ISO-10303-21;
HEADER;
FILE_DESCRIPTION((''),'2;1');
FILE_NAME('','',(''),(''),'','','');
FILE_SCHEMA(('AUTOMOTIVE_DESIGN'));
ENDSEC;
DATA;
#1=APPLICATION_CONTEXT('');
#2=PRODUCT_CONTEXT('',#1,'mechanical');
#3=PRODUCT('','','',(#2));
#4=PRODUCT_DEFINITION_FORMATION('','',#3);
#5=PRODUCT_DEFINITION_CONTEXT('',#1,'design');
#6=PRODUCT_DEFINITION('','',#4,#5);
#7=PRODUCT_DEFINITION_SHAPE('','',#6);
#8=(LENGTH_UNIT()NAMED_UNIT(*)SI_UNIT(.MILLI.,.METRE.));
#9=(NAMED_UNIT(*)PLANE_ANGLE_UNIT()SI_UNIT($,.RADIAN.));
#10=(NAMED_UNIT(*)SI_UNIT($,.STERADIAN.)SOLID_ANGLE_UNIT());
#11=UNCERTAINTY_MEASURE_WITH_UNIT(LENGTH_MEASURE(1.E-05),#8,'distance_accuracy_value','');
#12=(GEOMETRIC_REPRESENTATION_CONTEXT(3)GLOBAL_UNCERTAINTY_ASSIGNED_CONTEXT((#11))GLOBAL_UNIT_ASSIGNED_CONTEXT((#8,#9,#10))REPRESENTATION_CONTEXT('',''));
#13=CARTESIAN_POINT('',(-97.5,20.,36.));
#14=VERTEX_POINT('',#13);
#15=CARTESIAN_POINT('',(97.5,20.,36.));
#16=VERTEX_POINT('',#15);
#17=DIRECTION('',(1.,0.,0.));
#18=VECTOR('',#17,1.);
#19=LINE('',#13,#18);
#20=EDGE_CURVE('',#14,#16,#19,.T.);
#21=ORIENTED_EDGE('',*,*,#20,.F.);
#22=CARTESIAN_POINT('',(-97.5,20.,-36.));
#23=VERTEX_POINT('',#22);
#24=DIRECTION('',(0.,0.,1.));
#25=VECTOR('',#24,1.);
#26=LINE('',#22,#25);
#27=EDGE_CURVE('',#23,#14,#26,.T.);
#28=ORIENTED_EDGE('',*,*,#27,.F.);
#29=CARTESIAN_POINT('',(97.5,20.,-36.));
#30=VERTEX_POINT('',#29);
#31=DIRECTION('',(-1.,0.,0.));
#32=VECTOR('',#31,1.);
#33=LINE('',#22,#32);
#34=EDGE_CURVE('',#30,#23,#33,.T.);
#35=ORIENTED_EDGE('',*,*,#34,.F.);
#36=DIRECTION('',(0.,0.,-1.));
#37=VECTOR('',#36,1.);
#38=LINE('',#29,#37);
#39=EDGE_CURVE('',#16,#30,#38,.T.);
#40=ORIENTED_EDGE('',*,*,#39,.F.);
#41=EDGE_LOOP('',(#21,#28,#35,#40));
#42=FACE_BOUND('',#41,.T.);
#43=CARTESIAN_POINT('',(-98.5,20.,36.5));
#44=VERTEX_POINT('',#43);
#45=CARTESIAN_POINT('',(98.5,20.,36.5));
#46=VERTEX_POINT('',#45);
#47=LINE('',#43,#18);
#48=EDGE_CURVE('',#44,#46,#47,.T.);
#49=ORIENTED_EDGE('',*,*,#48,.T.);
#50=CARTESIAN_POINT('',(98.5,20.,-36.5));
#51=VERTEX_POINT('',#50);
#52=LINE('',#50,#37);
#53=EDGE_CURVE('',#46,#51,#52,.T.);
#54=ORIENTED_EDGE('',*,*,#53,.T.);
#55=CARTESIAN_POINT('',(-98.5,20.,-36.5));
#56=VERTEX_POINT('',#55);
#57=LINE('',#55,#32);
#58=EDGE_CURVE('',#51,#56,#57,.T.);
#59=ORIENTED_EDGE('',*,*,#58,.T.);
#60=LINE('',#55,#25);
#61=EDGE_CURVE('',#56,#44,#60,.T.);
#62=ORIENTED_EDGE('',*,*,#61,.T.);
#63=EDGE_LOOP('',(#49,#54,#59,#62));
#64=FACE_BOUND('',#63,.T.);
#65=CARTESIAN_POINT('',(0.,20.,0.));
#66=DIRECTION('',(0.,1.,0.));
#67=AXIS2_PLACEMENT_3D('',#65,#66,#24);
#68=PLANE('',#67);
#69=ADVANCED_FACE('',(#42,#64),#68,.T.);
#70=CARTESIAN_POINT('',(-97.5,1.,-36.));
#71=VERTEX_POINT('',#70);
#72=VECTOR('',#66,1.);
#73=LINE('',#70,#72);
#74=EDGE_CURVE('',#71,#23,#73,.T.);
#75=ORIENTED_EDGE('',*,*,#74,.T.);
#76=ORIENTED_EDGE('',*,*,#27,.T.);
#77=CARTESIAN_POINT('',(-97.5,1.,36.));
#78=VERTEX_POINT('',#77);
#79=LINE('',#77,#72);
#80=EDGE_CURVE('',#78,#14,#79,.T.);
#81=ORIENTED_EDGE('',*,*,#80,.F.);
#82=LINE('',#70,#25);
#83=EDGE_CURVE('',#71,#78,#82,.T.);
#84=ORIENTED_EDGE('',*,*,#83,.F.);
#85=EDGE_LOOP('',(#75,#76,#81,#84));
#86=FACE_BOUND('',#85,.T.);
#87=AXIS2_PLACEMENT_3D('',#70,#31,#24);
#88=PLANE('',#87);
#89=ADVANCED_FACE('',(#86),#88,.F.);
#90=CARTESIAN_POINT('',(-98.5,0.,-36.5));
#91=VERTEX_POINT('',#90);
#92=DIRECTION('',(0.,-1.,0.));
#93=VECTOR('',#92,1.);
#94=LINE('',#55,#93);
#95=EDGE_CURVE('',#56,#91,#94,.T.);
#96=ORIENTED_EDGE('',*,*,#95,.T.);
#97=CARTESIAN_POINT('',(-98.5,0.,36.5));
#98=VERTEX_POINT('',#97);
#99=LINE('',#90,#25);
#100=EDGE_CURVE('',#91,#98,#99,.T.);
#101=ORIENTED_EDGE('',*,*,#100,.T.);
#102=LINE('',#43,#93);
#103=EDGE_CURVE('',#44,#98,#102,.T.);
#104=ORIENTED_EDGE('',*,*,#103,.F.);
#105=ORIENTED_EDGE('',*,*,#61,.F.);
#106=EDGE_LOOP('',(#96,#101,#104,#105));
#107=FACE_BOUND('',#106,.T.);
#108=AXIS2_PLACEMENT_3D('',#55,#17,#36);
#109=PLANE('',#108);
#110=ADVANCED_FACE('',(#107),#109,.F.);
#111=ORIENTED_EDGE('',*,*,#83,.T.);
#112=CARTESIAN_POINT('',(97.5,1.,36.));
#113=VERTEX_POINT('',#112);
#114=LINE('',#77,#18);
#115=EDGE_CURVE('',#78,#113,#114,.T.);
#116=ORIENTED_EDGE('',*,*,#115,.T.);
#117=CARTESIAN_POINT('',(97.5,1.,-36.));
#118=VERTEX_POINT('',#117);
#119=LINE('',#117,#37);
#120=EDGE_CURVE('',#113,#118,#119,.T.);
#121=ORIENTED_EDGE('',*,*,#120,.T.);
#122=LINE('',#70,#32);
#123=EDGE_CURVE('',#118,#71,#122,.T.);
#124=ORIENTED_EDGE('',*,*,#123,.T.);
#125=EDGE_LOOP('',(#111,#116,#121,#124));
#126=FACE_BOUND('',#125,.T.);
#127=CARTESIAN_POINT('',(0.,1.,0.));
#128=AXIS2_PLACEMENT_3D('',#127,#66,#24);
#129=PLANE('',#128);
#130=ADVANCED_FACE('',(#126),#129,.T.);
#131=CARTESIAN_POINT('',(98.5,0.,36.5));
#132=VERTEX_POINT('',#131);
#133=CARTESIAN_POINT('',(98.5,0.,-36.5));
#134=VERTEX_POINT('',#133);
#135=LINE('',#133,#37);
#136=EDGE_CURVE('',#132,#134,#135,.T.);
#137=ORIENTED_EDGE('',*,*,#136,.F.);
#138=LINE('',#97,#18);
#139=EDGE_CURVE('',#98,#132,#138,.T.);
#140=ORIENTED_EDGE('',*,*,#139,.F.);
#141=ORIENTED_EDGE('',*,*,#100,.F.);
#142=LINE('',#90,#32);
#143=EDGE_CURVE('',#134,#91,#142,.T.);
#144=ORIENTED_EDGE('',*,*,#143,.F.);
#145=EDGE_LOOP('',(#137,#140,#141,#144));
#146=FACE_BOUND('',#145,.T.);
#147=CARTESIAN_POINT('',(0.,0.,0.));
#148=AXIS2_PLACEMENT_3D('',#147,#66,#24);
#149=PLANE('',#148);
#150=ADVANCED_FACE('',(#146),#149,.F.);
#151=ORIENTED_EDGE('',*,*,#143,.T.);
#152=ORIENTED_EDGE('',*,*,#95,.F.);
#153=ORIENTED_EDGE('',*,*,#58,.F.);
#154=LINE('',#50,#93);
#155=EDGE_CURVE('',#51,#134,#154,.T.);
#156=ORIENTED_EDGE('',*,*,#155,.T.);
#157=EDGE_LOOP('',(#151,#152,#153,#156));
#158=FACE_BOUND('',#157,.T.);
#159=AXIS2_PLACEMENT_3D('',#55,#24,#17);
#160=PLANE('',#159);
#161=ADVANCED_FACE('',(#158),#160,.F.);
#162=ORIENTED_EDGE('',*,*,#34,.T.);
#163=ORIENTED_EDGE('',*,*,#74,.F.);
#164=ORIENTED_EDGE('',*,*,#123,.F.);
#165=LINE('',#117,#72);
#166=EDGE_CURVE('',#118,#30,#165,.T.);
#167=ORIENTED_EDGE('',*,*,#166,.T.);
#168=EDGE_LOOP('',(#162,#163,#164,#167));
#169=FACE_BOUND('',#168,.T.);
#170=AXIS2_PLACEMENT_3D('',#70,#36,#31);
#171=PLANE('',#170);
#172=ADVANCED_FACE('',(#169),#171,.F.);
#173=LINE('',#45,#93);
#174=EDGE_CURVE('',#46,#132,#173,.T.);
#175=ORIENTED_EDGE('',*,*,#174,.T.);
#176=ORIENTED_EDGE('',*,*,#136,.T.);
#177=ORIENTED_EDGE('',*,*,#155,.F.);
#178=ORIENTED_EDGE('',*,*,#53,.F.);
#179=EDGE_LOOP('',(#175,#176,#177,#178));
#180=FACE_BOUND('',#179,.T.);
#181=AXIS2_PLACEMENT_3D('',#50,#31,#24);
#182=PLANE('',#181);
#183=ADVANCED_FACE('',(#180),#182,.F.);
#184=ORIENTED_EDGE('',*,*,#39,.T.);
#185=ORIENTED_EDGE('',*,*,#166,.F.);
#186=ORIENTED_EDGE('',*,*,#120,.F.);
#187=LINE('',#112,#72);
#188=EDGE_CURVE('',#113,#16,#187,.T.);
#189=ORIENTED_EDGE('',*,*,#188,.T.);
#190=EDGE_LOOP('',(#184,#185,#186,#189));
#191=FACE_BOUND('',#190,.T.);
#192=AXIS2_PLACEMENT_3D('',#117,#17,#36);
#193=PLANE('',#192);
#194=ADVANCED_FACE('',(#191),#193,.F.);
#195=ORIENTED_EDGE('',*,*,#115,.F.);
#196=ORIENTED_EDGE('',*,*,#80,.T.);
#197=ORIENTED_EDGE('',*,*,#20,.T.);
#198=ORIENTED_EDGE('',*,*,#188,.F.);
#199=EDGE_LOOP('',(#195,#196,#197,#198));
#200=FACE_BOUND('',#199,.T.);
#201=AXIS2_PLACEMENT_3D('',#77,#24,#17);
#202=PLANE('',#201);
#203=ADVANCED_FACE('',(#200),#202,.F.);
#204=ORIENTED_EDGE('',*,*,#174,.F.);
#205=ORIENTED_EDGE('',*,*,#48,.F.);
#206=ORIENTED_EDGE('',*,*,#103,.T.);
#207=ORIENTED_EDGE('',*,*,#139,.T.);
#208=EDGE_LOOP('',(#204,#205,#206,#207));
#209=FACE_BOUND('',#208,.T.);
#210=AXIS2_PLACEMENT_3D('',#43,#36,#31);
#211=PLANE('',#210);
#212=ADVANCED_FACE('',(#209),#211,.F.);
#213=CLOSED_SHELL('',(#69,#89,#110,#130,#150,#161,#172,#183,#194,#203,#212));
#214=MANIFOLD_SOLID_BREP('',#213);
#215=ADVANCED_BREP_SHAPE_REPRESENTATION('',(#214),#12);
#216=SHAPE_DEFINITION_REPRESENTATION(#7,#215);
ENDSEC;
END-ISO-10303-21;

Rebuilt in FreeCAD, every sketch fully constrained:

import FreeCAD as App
import Part
import Sketcher

V = App.Vector
Q = App.Units.Quantity


def add_polygon(sketch, points):
    """Adds a closed chain of lines whose ends are joined by coincident constraints."""
    first, n = sketch.GeometryCount, len(points)
    for a, b in zip(points, points[1:] + points[:1]):
        sketch.addGeometry(Part.LineSegment(App.Vector(*a, 0), App.Vector(*b, 0)), False)
    for i in range(n):
        sketch.addConstraint(Sketcher.Constraint("Coincident", first + i, 2, first + (i + 1) % n, 1))

doc = App.newDocument("Part")
params = doc.addObject("Spreadsheet::Sheet", "Params")
for row, (alias, value) in enumerate([
    ("sketch1_width", "197 mm"),
    ("sketch1_height", "73 mm"),
    ("pad1_length", "20 mm"),
    ("sketch2_width", "195 mm"),
    ("sketch2_height", "72 mm"),
    ("pocket1_length", "19 mm"),
], start=1):
    params.set(f"A{row}", alias)
    params.set(f"B{row}", "=" + value)
    params.setAlias(f"B{row}", alias)

body = doc.addObject("PartDesign::Body", "Body")

sketch1 = body.newObject("Sketcher::SketchObject", "Sketch")
sketch1.AttachmentSupport = (doc.getObject("XZ_Plane"), [""])
sketch1.MapMode = "FlatFace"
add_polygon(sketch1, [(-98.5, -36.5), (-98.5, 36.5), (98.5, 36.5), (98.5, -36.5)])
sketch1.addConstraint(Sketcher.Constraint("Vertical", 0))
sketch1.addConstraint(Sketcher.Constraint("Horizontal", 1))
sketch1.addConstraint(Sketcher.Constraint("Vertical", 2))
sketch1.addConstraint(Sketcher.Constraint("Horizontal", 3))
sketch1.addConstraint(Sketcher.Constraint("Symmetric", 0, 2, 2, 2, -1, 1))
sketch1.addConstraint(Sketcher.Constraint("DistanceX", 1, 1, 1, 2, Q("197 mm")))
sketch1.addConstraint(Sketcher.Constraint("DistanceY", 0, 1, 0, 2, Q("73 mm")))
sketch1.setExpression("Constraints[9]", "Params.sketch1_width")
sketch1.setExpression("Constraints[10]", "Params.sketch1_height")
pad1 = body.newObject("PartDesign::Pad", "Pad")
pad1.Profile = sketch1
pad1.setExpression("Length", "Params.pad1_length")
pad1.Reversed = True

sketch2 = body.newObject("Sketcher::SketchObject", "Sketch001")
sketch2.AttachmentSupport = (doc.getObject("XZ_Plane"), [""])
sketch2.MapMode = "FlatFace"
sketch2.AttachmentOffset = App.Placement(V(0, 0, -20), App.Rotation())
add_polygon(sketch2, [(-97.5, -36), (-97.5, 36), (97.5, 36), (97.5, -36)])
sketch2.addConstraint(Sketcher.Constraint("Vertical", 0))
sketch2.addConstraint(Sketcher.Constraint("Horizontal", 1))
sketch2.addConstraint(Sketcher.Constraint("Vertical", 2))
sketch2.addConstraint(Sketcher.Constraint("Horizontal", 3))
sketch2.addConstraint(Sketcher.Constraint("Symmetric", 0, 2, 2, 2, -1, 1))
sketch2.addConstraint(Sketcher.Constraint("DistanceX", 1, 1, 1, 2, Q("195 mm")))
sketch2.addConstraint(Sketcher.Constraint("DistanceY", 0, 1, 0, 2, Q("72 mm")))
sketch2.setExpression("Constraints[9]", "Params.sketch2_width")
sketch2.setExpression("Constraints[10]", "Params.sketch2_height")
pocket1 = body.newObject("PartDesign::Pocket", "Pocket")
pocket1.Profile = sketch2
pocket1.setExpression("Length", "Params.pocket1_length")
pocket1.Reversed = True

doc.recompute()
